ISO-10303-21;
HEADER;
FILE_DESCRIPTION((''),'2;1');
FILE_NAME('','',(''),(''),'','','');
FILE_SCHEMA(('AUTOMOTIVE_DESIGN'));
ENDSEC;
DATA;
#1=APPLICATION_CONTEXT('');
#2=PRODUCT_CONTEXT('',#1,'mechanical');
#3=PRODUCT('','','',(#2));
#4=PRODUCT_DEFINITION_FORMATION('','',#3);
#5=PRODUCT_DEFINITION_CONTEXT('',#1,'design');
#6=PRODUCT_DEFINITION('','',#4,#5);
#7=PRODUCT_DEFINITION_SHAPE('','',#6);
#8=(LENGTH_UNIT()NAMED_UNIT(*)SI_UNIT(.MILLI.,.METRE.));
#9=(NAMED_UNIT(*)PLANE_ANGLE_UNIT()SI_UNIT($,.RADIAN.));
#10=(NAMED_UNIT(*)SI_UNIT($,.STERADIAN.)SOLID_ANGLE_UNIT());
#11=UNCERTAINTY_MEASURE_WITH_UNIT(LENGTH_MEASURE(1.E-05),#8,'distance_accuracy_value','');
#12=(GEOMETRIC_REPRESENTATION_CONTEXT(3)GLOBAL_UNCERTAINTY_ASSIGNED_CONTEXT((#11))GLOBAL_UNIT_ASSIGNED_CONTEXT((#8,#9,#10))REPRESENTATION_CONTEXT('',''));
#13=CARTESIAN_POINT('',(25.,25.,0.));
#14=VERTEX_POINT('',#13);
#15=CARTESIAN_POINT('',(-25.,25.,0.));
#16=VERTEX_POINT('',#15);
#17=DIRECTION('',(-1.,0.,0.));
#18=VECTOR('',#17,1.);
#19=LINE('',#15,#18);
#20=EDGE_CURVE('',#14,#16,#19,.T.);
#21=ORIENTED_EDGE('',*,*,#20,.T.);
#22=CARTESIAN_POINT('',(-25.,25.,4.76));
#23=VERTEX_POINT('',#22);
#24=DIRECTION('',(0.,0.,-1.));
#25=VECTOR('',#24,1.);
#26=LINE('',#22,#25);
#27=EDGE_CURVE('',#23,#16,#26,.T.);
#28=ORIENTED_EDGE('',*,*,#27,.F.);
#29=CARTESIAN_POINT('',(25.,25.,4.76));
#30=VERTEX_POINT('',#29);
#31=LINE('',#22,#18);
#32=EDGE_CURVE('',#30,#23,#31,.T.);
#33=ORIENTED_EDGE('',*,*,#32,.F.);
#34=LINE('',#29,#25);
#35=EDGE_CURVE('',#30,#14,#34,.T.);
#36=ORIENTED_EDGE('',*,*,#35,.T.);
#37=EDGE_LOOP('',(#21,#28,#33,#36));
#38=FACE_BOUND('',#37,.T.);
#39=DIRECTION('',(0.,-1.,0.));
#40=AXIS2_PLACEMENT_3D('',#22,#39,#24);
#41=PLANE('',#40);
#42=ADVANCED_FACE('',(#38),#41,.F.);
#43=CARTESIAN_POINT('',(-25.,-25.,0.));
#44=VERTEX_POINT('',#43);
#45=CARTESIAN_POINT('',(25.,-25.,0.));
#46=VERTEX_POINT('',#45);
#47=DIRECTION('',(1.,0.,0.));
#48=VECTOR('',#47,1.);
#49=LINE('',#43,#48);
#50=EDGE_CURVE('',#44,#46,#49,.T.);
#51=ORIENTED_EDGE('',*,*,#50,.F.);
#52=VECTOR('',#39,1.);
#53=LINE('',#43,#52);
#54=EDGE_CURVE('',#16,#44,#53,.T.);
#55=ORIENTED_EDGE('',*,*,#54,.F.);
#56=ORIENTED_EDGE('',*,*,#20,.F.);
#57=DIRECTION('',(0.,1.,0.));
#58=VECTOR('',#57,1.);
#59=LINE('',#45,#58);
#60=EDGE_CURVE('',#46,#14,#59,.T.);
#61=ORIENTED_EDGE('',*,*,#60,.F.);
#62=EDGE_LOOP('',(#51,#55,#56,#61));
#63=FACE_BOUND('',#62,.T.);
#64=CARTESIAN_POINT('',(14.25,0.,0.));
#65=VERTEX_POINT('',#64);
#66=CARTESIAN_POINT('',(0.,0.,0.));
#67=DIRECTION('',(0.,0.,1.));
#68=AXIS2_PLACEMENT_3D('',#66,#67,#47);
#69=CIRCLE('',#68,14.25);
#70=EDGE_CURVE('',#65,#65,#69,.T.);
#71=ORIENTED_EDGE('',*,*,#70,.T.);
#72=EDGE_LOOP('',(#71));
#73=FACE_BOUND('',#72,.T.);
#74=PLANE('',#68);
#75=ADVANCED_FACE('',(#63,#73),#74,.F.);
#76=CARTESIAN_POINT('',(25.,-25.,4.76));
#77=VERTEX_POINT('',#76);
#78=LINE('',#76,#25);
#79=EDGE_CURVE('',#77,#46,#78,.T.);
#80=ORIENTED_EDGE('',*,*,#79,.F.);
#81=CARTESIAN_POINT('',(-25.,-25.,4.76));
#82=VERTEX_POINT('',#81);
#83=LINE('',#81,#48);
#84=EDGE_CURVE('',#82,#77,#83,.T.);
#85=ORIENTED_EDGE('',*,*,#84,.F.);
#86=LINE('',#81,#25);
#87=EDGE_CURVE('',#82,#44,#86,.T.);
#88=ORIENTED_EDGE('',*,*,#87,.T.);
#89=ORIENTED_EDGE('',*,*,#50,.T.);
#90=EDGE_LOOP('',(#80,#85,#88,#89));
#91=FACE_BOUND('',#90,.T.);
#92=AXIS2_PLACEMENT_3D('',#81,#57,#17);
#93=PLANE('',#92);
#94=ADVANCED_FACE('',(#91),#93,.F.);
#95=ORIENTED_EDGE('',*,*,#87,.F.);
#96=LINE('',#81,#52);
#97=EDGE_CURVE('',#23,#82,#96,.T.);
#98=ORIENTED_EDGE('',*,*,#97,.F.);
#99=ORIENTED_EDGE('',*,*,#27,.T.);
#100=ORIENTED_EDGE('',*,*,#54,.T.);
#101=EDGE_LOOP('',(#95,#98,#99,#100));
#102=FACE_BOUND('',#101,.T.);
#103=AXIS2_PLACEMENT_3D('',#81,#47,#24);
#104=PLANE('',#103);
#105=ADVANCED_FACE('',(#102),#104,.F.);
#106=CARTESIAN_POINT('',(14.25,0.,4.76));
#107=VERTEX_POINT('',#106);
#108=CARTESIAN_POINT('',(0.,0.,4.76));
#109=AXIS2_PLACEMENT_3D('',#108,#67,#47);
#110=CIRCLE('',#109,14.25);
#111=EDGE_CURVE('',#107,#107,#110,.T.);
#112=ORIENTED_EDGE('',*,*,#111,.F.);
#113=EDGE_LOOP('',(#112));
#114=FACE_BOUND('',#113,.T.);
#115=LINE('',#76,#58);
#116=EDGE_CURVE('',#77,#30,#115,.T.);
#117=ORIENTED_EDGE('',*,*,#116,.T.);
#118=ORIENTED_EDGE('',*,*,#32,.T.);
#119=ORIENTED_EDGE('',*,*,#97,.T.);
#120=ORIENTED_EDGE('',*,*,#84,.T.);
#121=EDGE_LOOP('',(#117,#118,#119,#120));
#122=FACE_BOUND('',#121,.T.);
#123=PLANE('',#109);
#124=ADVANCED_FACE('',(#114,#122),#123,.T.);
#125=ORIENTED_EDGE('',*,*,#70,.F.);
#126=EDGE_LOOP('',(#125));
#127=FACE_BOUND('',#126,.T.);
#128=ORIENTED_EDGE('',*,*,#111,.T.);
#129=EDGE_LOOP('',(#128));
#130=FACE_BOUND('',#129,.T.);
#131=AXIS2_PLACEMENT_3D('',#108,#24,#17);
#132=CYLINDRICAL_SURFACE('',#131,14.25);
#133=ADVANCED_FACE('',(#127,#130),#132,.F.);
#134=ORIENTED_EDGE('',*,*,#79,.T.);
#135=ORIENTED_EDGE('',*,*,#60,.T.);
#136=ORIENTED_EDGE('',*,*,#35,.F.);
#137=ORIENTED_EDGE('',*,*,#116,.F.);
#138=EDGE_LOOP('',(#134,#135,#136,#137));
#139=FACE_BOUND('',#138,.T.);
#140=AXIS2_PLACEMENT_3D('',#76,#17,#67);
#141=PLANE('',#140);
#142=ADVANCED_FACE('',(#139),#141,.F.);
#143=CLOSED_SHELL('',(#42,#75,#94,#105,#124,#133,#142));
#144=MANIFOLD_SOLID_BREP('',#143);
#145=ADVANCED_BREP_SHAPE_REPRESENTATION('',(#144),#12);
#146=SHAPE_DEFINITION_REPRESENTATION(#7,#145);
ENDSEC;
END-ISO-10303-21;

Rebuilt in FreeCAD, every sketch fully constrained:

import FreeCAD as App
import Part
import Sketcher


def add_polygon(sketch, points):
    """Adds a closed chain of lines whose ends are joined by coincident constraints."""
    first, n = sketch.GeometryCount, len(points)
    for a, b in zip(points, points[1:] + points[:1]):
        sketch.addGeometry(Part.LineSegment(App.Vector(*a, 0), App.Vector(*b, 0)), False)
    for i in range(n):
        sketch.addConstraint(Sketcher.Constraint("Coincident", first + i, 2, first + (i + 1) % n, 1))

doc = App.newDocument("Part")
params = doc.addObject("Spreadsheet::Sheet", "Params")
for row, (alias, value) in enumerate([
    ("sketch1_diameter", "28.5 mm"),
    ("sketch1_width", "50 mm"),
    ("pad1_length", "4.76 mm"),
], start=1):
    params.set(f"A{row}", alias)
    params.set(f"B{row}", "=" + value)
    params.setAlias(f"B{row}", alias)

body = doc.addObject("PartDesign::Body", "Body")

sketch1 = doc.addObject("Sketcher::SketchObject", "Sketch")
body.addObject(sketch1)
sketch1.AttachmentSupport = (doc.XY_Plane, [""])
sketch1.MapMode = "FlatFace"
add_polygon(sketch1, [(-25, 25), (-25, -25), (25, -25), (25, 25)])
sketch1.addGeometry(Part.Circle(App.Vector(0, 0, 0), App.Vector(0, 0, 1), 14.25), False)
sketch1.addConstraint([
    Sketcher.Constraint("Vertical", 0),
    Sketcher.Constraint("Horizontal", 1),
    Sketcher.Constraint("Vertical", 2),
    Sketcher.Constraint("Horizontal", 3),
    Sketcher.Constraint("Coincident", 4, 3, -1, 1),
    Sketcher.Constraint("Symmetric", 0, 2, 2, 2, -1, 1),
    Sketcher.Constraint("Equal", 3, 0),
    Sketcher.Constraint("Diameter", 4, 28.5),
    Sketcher.Constraint("DistanceX", 1, 1, 1, 2, 50.0),
])
sketch1.setExpression("Constraints[11]", "Params.sketch1_diameter")
sketch1.setExpression("Constraints[12]", "Params.sketch1_width")
pad1 = doc.addObject("PartDesign::Pad", "Pad")
body.addObject(pad1)
pad1.Profile = sketch1
pad1.setExpression("Length", "Params.pad1_length")

doc.recompute()
